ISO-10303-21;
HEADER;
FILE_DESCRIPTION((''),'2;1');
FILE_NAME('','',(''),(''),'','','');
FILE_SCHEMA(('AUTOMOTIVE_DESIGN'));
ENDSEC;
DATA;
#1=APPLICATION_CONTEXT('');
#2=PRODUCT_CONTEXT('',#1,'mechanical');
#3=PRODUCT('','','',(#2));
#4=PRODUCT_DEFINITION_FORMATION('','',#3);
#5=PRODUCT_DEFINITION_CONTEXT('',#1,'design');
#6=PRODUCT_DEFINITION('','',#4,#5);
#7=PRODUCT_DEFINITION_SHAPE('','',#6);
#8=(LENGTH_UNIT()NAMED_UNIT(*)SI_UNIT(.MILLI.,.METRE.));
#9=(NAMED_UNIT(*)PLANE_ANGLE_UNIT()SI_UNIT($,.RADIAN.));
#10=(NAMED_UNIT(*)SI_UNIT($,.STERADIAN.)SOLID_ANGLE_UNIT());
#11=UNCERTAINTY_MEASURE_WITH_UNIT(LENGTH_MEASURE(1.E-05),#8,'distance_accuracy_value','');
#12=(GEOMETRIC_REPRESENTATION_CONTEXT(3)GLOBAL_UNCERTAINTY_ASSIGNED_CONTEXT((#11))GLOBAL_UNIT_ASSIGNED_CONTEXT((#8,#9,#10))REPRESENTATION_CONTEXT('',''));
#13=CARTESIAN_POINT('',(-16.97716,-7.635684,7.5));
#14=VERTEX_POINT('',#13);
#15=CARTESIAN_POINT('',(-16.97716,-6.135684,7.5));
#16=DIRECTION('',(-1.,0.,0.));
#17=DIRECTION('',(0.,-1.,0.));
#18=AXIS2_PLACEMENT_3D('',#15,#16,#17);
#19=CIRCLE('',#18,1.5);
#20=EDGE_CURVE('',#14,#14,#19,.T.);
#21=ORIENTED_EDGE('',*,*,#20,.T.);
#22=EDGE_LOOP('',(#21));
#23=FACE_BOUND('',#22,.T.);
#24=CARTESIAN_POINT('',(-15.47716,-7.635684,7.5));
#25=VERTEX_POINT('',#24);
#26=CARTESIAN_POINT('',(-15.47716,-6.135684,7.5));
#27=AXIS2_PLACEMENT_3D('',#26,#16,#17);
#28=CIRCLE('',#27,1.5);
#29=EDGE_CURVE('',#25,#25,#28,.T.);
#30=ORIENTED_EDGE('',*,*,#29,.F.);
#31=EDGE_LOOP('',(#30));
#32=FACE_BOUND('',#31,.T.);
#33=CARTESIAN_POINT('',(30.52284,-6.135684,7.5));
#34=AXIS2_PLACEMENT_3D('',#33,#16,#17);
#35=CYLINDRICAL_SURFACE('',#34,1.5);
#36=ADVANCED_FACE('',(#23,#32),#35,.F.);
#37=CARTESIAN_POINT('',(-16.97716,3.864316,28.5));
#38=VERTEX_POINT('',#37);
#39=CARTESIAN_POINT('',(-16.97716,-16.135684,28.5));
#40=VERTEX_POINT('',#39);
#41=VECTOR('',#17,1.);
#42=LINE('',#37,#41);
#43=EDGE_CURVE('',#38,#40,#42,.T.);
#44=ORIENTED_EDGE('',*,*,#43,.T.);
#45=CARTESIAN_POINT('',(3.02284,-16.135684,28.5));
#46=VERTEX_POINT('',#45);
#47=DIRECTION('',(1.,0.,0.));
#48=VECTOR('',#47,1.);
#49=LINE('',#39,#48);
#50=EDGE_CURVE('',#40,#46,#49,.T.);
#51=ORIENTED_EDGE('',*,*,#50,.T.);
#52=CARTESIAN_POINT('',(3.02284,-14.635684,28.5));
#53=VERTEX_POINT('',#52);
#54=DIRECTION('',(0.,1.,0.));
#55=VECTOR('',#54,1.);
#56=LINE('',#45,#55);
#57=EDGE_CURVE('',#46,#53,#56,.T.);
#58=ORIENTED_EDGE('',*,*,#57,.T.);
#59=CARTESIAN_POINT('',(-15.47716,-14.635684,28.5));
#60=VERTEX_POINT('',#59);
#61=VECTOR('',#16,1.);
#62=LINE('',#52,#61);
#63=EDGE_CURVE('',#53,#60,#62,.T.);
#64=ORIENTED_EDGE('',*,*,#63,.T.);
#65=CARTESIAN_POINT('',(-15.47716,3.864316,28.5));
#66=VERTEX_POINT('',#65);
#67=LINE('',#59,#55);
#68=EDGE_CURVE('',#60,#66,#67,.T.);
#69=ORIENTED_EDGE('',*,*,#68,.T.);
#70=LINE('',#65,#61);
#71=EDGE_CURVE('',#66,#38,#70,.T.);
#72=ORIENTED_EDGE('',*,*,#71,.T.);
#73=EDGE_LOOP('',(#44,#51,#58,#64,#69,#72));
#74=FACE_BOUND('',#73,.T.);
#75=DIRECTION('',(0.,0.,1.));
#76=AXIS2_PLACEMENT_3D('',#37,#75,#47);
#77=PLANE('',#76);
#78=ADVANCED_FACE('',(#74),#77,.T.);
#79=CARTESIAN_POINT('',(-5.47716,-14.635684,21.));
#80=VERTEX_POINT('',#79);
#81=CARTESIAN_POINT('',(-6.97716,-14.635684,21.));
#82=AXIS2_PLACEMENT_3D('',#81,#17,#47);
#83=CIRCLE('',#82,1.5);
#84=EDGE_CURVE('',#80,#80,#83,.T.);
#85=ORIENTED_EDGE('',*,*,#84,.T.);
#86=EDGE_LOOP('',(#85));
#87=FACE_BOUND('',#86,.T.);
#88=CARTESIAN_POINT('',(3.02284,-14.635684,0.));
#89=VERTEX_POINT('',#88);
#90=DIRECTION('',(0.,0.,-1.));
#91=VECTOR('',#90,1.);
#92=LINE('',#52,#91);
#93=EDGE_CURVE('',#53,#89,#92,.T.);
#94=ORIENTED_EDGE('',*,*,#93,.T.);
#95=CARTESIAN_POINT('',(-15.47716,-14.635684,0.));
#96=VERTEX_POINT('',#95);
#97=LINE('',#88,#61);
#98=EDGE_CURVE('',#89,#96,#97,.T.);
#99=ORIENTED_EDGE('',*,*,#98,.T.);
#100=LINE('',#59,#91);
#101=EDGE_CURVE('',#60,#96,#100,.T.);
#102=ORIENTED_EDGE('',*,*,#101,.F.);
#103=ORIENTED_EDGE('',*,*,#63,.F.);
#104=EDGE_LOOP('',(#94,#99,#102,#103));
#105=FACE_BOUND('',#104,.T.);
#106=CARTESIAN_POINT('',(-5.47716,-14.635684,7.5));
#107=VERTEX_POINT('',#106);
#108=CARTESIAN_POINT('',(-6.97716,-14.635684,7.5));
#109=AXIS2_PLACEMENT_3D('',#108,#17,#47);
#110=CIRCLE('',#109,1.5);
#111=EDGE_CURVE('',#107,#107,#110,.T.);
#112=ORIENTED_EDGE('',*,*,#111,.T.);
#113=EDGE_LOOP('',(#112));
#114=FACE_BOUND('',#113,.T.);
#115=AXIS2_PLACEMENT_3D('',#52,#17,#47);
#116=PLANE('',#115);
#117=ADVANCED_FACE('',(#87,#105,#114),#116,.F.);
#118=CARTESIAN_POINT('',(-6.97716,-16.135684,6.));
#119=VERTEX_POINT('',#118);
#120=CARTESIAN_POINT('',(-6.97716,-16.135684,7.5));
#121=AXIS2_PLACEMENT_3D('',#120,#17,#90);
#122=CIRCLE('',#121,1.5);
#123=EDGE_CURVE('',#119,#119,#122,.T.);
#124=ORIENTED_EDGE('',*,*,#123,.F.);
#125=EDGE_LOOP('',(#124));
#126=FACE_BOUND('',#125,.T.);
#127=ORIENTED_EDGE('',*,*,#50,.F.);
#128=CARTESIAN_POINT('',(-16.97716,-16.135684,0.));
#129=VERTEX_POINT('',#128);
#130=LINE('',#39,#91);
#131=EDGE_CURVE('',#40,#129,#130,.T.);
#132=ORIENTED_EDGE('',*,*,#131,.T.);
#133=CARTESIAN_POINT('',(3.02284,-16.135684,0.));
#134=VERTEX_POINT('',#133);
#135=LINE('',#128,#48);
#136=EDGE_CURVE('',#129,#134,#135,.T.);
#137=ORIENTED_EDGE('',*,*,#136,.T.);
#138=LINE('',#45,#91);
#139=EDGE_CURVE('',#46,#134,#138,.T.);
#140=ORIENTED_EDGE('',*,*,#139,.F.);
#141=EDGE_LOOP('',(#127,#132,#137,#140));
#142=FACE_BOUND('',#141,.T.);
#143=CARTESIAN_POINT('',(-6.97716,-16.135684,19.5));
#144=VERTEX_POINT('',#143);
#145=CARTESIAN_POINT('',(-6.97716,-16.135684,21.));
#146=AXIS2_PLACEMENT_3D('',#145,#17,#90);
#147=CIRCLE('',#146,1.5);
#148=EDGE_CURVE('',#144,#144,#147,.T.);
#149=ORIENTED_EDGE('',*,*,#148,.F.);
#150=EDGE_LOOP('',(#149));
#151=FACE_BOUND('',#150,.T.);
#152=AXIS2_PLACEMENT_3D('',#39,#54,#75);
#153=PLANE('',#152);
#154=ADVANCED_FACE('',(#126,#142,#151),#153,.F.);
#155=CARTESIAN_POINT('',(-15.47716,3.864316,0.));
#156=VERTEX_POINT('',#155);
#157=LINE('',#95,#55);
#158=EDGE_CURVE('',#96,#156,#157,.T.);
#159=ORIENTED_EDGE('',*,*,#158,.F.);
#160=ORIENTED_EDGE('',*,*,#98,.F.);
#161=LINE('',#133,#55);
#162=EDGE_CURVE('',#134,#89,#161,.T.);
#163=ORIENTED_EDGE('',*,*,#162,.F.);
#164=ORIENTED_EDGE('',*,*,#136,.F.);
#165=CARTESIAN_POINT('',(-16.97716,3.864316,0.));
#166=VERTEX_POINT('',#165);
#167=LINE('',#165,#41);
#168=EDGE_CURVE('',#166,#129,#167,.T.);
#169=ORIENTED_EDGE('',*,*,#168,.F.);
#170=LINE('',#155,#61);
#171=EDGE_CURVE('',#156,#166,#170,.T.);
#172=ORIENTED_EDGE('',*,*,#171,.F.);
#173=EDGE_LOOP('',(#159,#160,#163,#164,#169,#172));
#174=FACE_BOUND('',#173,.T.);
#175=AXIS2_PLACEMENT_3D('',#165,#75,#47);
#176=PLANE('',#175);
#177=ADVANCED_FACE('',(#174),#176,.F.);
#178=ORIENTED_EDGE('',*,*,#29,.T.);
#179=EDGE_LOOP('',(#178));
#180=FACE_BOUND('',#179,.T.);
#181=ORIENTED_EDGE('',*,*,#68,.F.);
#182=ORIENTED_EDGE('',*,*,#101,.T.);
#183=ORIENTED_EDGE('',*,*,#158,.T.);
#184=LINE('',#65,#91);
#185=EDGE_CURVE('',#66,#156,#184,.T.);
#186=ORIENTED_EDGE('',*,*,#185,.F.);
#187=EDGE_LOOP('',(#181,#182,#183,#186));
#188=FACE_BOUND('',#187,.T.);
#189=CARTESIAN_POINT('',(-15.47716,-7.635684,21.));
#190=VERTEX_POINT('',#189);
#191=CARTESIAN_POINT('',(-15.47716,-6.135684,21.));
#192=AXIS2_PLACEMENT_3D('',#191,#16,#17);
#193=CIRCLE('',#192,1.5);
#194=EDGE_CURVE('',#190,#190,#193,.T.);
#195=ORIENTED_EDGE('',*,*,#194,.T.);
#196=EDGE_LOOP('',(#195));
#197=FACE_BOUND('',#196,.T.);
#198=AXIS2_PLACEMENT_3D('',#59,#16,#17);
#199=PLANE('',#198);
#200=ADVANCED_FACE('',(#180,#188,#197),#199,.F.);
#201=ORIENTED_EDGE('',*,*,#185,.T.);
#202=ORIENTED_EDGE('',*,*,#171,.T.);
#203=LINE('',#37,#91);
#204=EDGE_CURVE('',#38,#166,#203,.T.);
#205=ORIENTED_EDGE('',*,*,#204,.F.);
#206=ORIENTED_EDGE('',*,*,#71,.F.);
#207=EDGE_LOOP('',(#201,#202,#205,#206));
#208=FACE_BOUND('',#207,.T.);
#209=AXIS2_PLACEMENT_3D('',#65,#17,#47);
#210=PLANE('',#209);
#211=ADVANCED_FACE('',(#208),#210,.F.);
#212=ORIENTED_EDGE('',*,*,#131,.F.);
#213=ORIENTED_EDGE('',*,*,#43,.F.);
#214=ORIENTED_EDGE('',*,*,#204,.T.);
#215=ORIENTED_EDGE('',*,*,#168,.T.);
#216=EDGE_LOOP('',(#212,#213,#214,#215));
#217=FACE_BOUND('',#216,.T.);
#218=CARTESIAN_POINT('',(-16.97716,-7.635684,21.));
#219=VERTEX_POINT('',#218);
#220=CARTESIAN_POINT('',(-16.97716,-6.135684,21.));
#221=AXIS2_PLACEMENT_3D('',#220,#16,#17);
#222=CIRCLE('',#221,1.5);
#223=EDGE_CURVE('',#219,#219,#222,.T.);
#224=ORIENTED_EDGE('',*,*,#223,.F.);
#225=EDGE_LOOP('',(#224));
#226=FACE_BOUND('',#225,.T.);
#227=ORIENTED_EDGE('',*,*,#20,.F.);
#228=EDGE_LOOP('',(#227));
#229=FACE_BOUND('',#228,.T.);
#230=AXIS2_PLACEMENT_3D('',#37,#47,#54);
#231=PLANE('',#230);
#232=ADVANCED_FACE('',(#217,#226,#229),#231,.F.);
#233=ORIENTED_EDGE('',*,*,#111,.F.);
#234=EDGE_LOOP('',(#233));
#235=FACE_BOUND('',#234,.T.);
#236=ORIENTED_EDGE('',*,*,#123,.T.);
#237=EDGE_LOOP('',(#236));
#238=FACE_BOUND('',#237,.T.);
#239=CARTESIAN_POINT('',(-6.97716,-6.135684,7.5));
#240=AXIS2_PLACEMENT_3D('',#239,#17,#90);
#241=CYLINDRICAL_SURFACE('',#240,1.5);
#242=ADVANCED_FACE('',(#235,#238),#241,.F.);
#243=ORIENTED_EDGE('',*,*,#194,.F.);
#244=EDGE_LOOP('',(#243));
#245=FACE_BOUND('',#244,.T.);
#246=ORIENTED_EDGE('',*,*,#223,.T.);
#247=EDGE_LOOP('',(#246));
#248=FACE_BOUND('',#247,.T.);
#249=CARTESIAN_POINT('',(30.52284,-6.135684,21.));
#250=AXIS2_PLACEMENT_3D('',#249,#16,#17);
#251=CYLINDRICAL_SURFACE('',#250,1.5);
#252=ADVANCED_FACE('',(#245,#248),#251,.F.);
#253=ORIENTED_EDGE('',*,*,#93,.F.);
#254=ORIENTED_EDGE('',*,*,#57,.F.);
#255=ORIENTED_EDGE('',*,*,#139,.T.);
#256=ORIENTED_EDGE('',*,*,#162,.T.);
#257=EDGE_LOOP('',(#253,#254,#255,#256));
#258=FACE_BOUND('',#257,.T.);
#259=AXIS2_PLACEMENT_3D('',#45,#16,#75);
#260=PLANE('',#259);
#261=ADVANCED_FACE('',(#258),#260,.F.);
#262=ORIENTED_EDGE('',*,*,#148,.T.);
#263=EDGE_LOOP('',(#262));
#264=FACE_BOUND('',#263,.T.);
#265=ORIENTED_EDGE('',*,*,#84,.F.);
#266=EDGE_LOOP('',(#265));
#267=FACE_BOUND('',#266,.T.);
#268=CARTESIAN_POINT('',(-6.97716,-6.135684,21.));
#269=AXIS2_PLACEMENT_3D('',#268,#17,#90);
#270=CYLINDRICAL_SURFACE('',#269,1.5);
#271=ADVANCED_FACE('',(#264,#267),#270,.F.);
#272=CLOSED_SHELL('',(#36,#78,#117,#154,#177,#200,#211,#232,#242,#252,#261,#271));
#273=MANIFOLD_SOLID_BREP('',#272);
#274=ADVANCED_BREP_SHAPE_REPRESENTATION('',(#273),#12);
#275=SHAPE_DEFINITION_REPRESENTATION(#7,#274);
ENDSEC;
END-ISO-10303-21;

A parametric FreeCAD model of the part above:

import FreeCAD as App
import Part
import Sketcher
Q = App.Units.Quantity

doc = App.newDocument("Part")
body = doc.addObject("PartDesign::Body", "Body")

sketch1 = body.newObject("Sketcher::SketchObject", "Sketch")
sketch1.AttachmentSupport = (doc.getObject("XY_Plane"), [""])
sketch1.MapMode = "FlatFace"
sketch1.addGeometry(Part.LineSegment(App.Vector(-16.97716, 3.864316, 0), App.Vector(-16.97716, -16.135684, 0)), False)
sketch1.addGeometry(Part.LineSegment(App.Vector(-16.97716, -16.135684, 0), App.Vector(3.02284, -16.135684, 0)), False)
sketch1.addGeometry(Part.LineSegment(App.Vector(3.02284, -16.135684, 0), App.Vector(3.02284, -14.635684, 0)), False)
sketch1.addGeometry(Part.LineSegment(App.Vector(3.02284, -14.635684, 0), App.Vector(-15.47716, -14.635684, 0)), False)
sketch1.addGeometry(Part.LineSegment(App.Vector(-15.47716, -14.635684, 0), App.Vector(-15.47716, 3.864316, 0)), False)
sketch1.addGeometry(Part.LineSegment(App.Vector(-15.47716, 3.864316, 0), App.Vector(-16.97716, 3.864316, 0)), False)
sketch1.addConstraint(Sketcher.Constraint("Coincident", 0, 2, 1, 1))
sketch1.addConstraint(Sketcher.Constraint("Coincident", 1, 2, 2, 1))
sketch1.addConstraint(Sketcher.Constraint("Coincident", 2, 2, 3, 1))
sketch1.addConstraint(Sketcher.Constraint("Coincident", 3, 2, 4, 1))
sketch1.addConstraint(Sketcher.Constraint("Coincident", 4, 2, 5, 1))
sketch1.addConstraint(Sketcher.Constraint("Coincident", 5, 2, 0, 1))
sketch1.addConstraint(Sketcher.Constraint("Vertical", 0))
sketch1.addConstraint(Sketcher.Constraint("Horizontal", 1))
sketch1.addConstraint(Sketcher.Constraint("Vertical", 2))
sketch1.addConstraint(Sketcher.Constraint("Horizontal", 3))
sketch1.addConstraint(Sketcher.Constraint("Vertical", 4))
sketch1.addConstraint(Sketcher.Constraint("Horizontal", 5))
sketch1.addConstraint(Sketcher.Constraint("Equal", 1, 0))
sketch1.addConstraint(Sketcher.Constraint("Equal", 5, 2))
sketch1.addConstraint(Sketcher.Constraint("DistanceX", 1, 1, 1, 2, Q("20 mm")))
sketch1.addConstraint(Sketcher.Constraint("DistanceX", 3, 2, 3, 1, Q("18.5 mm")))
sketch1.addConstraint(Sketcher.Constraint("DistanceX", 0, 2, -1, 1, Q("16.97716 mm")))
sketch1.addConstraint(Sketcher.Constraint("DistanceY", 0, 2, -1, 1, Q("16.135684 mm")))
pad1 = body.newObject("PartDesign::Pad", "Pad")
pad1.Profile = sketch1
pad1.Length = 28.5

sketch2 = body.newObject("Sketcher::SketchObject", "Sketch001")
sketch2.AttachmentSupport = (doc.getObject("YZ_Plane"), [""])
sketch2.MapMode = "FlatFace"
sketch2.AttachmentOffset = App.Placement(App.Vector(0, 0, -16.97716), App.Rotation())
sketch2.addGeometry(Part.Circle(App.Vector(-6.135684, 21, 0), App.Vector(0, 0, 1), 1.5), False)
sketch2.addGeometry(Part.Circle(App.Vector(-6.135684, 7.5, 0), App.Vector(0, 0, 1), 1.5), False)
sketch2.addConstraint(Sketcher.Constraint("Equal", 0, 1))
sketch2.addConstraint(Sketcher.Constraint("Vertical", 0, 3, 1, 3))
sketch2.addConstraint(Sketcher.Constraint("Diameter", 0, Q("3 mm")))
sketch2.addConstraint(Sketcher.Constraint("DistanceY", -1, 1, 0, 3, Q("21 mm")))
sketch2.addConstraint(Sketcher.Constraint("DistanceY", -1, 1, 1, 3, Q("7.5 mm")))
sketch2.addConstraint(Sketcher.Constraint("DistanceX", 0, 3, -1, 1, Q("6.135684 mm")))
pocket1 = body.newObject("PartDesign::Pocket", "Pocket")
pocket1.Profile = sketch2
pocket1.Length = 47.5
pocket1.Reversed = True

sketch3 = body.newObject("Sketcher::SketchObject", "Sketch002")
sketch3.AttachmentSupport = (doc.getObject("XZ_Plane"), [""])
sketch3.MapMode = "FlatFace"
sketch3.AttachmentOffset = App.Placement(App.Vector(0, 0, 16.135684), App.Rotation())
sketch3.addGeometry(Part.Circle(App.Vector(-6.97716, 7.5, 0), App.Vector(0, 0, 1), 1.5), False)
sketch3.addGeometry(Part.Circle(App.Vector(-6.97716, 21, 0), App.Vector(0, 0, 1), 1.5), False)
sketch3.addConstraint(Sketcher.Constraint("Equal", 0, 1))
sketch3.addConstraint(Sketcher.Constraint("Vertical", 0, 3, 1, 3))
sketch3.addConstraint(Sketcher.Constraint("Diameter", 0, Q("3 mm")))
sketch3.addConstraint(Sketcher.Constraint("DistanceY", -1, 1, 1, 3, Q("21 mm")))
sketch3.addConstraint(Sketcher.Constraint("DistanceY", -1, 1, 0, 3, Q("7.5 mm")))
sketch3.addConstraint(Sketcher.Constraint("DistanceX", 0, 3, -1, 1, Q("6.97716 mm")))
pocket2 = body.newObject("PartDesign::Pocket", "Pocket001")
pocket2.Profile = sketch3
pocket2.Length = 10

doc.recompute()
